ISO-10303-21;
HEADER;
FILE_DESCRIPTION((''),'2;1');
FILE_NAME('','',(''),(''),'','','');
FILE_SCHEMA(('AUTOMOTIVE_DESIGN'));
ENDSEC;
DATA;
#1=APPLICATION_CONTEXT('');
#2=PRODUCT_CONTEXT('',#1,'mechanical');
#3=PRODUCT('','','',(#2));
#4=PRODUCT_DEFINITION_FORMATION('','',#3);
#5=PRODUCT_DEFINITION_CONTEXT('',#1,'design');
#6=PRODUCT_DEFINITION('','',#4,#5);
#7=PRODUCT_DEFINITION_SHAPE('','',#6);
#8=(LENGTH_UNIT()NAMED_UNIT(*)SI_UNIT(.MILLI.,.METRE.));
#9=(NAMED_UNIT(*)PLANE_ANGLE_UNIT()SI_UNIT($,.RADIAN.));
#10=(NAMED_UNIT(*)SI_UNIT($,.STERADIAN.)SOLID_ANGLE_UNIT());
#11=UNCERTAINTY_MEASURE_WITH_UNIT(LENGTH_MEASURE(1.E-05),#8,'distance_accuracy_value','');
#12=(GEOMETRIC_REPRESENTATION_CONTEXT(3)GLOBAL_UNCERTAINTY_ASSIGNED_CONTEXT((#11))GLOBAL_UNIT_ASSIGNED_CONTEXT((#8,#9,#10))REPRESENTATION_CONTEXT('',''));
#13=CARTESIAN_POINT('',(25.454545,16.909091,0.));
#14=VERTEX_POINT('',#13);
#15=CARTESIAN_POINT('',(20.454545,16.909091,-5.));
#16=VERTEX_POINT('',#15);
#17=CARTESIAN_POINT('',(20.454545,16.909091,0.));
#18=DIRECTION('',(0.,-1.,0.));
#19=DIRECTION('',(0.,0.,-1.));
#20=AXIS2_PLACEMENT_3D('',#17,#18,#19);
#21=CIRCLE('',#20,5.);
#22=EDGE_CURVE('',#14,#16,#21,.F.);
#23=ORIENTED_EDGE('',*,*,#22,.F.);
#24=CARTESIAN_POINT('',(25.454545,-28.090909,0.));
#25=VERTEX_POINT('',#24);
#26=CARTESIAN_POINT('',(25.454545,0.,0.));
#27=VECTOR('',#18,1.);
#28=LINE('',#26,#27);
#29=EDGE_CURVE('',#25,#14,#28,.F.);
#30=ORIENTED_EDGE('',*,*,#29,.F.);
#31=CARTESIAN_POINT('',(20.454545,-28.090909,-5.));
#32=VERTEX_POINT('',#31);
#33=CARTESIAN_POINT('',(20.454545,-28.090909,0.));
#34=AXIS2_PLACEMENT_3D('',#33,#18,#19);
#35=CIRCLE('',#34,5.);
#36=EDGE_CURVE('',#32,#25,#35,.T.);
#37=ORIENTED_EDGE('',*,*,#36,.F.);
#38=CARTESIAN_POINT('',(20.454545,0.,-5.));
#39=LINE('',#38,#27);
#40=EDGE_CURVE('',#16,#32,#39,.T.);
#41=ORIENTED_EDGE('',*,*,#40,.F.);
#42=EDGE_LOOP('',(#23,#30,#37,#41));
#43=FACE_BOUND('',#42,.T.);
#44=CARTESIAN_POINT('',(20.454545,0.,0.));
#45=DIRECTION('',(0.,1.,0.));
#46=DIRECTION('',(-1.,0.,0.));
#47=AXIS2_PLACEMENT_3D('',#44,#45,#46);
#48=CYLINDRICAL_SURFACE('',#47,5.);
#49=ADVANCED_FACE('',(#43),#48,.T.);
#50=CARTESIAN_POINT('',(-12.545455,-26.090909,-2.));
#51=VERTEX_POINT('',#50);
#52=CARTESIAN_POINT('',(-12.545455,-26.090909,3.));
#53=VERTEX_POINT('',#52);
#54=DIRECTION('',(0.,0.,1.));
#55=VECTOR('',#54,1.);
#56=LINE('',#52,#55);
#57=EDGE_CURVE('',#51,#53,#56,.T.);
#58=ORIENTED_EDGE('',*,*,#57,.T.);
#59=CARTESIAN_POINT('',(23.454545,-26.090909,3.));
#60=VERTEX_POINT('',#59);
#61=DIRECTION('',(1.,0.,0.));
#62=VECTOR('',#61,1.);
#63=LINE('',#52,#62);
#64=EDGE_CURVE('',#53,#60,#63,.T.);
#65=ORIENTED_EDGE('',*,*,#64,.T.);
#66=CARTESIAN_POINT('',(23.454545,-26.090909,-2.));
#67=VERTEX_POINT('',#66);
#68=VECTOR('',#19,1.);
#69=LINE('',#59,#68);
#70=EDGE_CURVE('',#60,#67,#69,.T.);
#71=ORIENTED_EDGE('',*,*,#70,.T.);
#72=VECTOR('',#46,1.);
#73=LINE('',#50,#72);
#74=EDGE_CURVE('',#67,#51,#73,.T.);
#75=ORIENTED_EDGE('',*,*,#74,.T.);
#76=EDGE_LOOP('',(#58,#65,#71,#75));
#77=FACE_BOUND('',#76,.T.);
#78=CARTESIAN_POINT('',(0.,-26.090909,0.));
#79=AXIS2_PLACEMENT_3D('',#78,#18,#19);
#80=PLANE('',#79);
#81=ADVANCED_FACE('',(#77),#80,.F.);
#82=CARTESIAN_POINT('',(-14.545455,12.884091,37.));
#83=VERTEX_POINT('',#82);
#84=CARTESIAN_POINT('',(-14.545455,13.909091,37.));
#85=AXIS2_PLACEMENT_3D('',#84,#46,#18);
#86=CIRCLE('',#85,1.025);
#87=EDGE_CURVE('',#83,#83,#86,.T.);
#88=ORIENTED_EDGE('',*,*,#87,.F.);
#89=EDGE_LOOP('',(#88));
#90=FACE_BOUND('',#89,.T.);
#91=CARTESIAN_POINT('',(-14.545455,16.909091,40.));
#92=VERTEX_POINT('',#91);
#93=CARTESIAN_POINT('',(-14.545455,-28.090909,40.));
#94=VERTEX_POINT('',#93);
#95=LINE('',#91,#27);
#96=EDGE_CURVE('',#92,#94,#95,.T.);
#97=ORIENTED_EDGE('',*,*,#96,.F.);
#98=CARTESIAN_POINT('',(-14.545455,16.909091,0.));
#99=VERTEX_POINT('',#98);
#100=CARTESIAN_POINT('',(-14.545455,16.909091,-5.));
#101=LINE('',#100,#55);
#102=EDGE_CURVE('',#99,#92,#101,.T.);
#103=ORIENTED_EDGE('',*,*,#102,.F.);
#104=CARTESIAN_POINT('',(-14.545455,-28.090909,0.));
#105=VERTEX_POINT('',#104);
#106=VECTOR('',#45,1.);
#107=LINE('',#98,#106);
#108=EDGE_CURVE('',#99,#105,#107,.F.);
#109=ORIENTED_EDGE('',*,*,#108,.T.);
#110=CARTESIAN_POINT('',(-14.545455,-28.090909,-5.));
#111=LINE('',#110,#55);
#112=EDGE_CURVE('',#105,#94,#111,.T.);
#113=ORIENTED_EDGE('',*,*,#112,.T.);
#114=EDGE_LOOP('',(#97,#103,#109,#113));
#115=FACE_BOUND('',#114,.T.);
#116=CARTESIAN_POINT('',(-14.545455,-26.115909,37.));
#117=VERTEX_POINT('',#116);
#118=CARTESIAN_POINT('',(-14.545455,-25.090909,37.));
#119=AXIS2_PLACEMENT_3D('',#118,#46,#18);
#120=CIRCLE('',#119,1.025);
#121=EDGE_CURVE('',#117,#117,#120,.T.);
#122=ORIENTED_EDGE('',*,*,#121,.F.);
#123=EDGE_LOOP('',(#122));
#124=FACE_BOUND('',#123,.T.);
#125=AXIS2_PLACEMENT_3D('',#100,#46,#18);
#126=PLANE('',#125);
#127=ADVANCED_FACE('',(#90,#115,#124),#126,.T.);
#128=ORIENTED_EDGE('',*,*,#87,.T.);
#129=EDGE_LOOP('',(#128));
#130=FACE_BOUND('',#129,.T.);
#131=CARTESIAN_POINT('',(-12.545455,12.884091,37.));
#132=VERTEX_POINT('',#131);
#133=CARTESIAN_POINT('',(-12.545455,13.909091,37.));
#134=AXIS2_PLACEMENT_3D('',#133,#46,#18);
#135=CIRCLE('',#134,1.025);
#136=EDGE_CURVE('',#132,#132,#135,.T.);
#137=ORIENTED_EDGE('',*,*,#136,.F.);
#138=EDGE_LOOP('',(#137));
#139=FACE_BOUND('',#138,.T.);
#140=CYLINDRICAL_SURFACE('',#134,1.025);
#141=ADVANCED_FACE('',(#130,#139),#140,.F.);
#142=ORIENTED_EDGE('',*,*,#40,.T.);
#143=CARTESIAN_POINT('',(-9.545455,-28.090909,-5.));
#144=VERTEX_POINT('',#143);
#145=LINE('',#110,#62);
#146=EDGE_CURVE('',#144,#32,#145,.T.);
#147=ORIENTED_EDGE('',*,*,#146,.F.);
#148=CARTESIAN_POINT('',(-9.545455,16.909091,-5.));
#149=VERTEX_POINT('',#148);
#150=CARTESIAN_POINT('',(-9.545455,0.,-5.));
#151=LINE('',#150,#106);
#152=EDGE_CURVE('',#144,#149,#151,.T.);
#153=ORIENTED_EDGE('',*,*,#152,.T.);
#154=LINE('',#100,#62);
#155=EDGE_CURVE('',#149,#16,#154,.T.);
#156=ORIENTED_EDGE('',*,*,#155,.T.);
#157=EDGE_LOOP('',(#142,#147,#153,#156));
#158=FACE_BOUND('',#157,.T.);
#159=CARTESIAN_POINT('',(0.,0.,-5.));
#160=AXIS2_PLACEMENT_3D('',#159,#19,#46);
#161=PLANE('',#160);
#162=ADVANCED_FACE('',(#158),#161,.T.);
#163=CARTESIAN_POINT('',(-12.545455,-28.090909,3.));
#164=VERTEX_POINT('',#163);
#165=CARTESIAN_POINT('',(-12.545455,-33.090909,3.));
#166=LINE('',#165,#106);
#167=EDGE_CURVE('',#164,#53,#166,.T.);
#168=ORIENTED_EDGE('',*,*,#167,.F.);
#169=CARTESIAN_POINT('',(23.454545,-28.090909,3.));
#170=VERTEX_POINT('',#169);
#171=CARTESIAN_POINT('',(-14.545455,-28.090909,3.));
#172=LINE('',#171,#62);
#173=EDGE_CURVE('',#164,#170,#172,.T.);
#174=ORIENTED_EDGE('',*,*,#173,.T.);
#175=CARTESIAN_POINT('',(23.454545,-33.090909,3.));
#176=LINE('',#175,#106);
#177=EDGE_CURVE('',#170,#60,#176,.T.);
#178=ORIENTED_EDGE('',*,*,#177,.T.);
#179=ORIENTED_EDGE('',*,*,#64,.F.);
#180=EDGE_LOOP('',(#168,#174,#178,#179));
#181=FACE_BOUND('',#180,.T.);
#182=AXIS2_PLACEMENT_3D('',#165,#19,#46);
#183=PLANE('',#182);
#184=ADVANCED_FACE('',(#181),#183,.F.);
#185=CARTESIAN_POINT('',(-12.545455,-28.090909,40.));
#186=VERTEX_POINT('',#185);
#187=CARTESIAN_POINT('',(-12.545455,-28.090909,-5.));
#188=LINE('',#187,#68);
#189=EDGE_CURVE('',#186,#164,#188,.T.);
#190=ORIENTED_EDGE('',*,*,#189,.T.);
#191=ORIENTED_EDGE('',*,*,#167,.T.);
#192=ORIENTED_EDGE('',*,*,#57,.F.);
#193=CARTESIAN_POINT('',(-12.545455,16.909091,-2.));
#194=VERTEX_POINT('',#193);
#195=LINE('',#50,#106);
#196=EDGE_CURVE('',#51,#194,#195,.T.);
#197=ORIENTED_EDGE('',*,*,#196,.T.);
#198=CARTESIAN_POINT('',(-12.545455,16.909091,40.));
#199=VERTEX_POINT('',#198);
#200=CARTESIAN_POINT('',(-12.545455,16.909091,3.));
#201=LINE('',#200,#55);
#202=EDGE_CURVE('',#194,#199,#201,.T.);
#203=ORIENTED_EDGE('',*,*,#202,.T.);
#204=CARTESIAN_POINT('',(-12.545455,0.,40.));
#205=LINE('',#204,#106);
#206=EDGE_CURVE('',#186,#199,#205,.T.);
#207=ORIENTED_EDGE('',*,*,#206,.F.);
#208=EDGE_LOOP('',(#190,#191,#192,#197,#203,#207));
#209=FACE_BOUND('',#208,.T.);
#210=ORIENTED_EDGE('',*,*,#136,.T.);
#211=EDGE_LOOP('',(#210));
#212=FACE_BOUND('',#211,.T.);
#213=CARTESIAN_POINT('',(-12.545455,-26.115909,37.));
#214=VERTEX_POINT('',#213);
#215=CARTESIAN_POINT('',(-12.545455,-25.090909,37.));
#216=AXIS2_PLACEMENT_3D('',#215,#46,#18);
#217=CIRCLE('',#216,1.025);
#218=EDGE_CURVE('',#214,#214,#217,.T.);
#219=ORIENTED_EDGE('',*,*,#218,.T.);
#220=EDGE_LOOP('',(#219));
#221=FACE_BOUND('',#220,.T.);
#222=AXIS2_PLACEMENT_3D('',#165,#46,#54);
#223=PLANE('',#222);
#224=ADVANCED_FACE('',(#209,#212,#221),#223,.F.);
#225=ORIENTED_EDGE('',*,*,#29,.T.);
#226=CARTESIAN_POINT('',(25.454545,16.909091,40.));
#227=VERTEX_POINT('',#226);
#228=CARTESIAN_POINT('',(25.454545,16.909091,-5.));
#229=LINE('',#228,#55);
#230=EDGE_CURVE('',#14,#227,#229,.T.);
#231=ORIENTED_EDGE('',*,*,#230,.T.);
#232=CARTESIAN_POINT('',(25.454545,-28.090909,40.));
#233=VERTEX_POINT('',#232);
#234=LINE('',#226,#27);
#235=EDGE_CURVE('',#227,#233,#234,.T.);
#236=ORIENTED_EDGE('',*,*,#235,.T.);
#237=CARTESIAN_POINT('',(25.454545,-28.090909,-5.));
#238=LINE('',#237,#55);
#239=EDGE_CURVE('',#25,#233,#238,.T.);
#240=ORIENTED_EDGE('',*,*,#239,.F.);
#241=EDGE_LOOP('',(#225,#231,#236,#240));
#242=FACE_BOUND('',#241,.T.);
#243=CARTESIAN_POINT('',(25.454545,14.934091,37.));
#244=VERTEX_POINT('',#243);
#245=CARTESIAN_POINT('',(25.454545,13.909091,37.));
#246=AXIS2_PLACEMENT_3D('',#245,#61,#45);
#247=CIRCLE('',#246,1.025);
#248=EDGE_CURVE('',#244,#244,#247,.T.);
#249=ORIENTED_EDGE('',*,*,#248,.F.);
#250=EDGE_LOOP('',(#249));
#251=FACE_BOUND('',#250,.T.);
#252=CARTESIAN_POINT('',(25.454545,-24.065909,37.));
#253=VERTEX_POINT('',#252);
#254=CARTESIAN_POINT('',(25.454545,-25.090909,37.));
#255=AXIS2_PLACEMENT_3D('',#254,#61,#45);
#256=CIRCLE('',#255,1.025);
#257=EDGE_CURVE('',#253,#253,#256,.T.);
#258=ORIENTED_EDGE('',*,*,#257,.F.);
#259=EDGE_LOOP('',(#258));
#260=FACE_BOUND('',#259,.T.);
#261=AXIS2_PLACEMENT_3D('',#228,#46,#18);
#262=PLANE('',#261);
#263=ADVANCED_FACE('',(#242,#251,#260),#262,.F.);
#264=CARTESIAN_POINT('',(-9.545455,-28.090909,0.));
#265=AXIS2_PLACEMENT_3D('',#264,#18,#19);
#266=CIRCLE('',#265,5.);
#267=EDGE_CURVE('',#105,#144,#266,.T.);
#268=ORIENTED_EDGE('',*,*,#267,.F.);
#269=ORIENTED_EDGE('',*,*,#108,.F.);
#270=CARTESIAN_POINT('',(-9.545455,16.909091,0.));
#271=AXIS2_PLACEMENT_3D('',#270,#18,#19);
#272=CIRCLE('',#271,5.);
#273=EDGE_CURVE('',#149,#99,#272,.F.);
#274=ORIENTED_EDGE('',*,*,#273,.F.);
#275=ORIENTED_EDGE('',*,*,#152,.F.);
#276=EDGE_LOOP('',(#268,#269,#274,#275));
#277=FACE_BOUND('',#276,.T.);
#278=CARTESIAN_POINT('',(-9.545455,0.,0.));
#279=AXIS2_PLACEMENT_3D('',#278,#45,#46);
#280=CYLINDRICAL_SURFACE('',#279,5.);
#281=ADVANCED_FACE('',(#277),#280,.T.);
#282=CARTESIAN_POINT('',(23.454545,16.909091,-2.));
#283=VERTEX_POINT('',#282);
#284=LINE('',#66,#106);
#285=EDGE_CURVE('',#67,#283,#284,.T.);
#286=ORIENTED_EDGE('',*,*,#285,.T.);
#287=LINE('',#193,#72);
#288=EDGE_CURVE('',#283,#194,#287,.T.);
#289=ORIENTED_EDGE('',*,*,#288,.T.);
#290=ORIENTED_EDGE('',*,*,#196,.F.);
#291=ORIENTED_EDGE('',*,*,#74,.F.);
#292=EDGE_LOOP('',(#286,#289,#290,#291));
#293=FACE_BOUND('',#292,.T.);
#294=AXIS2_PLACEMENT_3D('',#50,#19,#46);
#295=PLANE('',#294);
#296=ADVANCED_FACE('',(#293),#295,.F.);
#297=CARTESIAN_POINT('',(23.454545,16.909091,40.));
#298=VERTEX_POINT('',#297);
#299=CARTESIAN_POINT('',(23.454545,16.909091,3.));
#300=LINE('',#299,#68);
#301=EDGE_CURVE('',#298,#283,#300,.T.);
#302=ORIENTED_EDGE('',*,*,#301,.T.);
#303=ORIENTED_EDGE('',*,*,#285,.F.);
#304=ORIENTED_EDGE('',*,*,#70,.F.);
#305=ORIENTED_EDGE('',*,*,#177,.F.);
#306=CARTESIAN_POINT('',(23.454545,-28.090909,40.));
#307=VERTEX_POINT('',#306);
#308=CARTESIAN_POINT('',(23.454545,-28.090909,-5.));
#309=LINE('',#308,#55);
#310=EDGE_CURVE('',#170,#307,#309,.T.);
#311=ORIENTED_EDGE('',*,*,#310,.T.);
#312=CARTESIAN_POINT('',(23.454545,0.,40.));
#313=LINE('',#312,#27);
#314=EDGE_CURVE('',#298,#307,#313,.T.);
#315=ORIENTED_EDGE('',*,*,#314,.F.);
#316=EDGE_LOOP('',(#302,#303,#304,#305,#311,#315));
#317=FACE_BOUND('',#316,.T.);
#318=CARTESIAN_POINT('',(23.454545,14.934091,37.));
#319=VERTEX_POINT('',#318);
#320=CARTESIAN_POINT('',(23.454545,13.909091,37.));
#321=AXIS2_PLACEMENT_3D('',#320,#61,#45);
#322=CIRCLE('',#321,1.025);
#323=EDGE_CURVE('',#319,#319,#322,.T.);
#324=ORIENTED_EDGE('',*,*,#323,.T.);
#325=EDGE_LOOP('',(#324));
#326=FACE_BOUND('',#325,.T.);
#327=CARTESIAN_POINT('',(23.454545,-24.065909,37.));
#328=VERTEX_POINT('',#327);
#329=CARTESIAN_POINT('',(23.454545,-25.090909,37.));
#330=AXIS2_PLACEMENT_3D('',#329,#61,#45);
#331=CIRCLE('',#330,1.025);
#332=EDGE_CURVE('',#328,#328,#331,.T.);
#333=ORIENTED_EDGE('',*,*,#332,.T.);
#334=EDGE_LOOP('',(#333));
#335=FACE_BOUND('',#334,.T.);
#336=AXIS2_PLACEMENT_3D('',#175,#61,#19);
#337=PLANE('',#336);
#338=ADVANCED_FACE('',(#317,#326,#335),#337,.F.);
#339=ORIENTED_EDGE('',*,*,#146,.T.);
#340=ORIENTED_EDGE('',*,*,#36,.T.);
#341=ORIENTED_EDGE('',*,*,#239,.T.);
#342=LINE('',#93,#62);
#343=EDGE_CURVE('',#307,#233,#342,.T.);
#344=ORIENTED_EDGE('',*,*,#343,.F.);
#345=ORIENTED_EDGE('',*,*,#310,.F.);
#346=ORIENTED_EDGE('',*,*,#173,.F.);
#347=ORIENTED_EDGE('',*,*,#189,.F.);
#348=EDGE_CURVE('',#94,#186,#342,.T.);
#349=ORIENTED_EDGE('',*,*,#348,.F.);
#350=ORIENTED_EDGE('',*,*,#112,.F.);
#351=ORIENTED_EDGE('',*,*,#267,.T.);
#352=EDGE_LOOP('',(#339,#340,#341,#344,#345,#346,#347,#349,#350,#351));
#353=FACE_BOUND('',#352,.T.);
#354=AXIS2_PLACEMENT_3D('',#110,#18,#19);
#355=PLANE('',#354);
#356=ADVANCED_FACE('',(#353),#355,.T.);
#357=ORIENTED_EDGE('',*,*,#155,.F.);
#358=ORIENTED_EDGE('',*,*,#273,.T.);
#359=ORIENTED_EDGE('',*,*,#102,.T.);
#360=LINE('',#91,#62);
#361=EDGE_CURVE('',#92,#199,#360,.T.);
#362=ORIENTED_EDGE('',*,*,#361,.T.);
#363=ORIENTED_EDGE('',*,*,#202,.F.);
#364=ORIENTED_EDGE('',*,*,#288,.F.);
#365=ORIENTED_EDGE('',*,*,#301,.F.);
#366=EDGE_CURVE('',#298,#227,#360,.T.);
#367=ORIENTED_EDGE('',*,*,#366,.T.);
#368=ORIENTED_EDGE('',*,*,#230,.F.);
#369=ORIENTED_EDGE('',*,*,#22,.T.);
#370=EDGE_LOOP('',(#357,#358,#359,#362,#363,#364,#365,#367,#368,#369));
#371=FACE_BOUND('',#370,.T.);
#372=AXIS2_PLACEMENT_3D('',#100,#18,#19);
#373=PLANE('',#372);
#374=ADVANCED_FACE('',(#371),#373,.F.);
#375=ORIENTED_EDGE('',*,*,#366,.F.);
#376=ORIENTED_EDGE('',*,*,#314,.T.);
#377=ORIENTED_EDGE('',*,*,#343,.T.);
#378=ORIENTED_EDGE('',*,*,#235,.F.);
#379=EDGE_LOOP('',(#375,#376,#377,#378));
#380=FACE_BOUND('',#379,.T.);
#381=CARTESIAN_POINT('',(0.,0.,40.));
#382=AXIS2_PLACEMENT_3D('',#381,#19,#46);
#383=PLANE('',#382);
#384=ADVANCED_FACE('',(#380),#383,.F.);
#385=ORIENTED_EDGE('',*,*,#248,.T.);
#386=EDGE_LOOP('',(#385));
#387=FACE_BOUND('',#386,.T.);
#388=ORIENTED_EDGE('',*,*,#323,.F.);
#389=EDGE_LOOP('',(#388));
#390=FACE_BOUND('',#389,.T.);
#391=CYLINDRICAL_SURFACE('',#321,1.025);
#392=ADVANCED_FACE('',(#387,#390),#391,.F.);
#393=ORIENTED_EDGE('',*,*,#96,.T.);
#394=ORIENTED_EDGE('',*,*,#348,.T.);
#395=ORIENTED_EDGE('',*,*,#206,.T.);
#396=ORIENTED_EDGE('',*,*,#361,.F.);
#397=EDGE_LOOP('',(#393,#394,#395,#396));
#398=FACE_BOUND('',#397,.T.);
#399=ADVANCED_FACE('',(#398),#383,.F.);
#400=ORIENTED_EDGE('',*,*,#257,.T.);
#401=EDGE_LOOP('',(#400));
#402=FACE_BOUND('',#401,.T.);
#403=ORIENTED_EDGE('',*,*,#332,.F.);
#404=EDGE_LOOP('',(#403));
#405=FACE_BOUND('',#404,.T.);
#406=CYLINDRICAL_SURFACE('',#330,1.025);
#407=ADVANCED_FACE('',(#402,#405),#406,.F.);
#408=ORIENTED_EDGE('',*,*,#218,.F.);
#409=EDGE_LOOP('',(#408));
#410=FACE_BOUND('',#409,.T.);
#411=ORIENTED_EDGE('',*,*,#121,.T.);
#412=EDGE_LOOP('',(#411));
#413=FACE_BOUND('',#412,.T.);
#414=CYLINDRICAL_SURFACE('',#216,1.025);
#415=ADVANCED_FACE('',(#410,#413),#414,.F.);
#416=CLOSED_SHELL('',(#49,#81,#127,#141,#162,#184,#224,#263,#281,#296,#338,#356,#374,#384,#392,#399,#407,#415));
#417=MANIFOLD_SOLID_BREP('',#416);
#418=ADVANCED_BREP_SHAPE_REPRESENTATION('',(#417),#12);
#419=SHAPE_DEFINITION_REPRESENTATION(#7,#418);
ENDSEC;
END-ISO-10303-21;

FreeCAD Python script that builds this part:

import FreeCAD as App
import Part
import Sketcher
from FreeCAD import Vector


def edges_at(feature, points):
    """Names of the edges that pass closest to the given points."""
    edges = feature.Shape.Edges
    near = lambda p: min(range(len(edges)), key=lambda i: edges[i].distToShape(Part.Vertex(*p))[0])
    return sorted({f"Edge{near(p) + 1}" for p in points})

doc = App.newDocument("Part")
body = doc.addObject("PartDesign::Body", "Body")

# Sketch on XY plane
sketch1 = body.newObject("Sketcher::SketchObject", "Sketch")
sketch1.AttachmentSupport = (doc.getObject("XY_Plane"), [""])
sketch1.MapMode = "FlatFace"
sketch1.addGeometry([
    Part.LineSegment(Vector(-15, 17, 0), Vector(-15, -28, 0)),
    Part.LineSegment(Vector(-15, -28, 0), Vector(25, -28, 0)),
    Part.LineSegment(Vector(25, -28, 0), Vector(25, 17, 0)),
    Part.LineSegment(Vector(25, 17, 0), Vector(-15, 17, 0)),
], False)
sketch1.addConstraint([
    Sketcher.Constraint("Coincident", 0, 2, 1, 1),
    Sketcher.Constraint("Coincident", 1, 2, 2, 1),
    Sketcher.Constraint("Coincident", 2, 2, 3, 1),
    Sketcher.Constraint("Coincident", 3, 2, 0, 1),
    Sketcher.Constraint("Vertical", 0),
    Sketcher.Constraint("Horizontal", 1),
    Sketcher.Constraint("Vertical", 2),
    Sketcher.Constraint("Horizontal", 3),
    Sketcher.Constraint("DistanceX", 1, 1, 1, 2, 40.0),
    Sketcher.Constraint("DistanceY", 0, 2, 0, 1, 45.0),
    Sketcher.Constraint("DistanceY", 0, 2, -1, 1, 28.090909),
    Sketcher.Constraint("DistanceX", 0, 2, -1, 1, 14.545455),
])
pad1 = body.newObject("PartDesign::Pad", "Pad")
pad1.Profile = sketch1
pad1.Type = "TwoLengths"
pad1.Length = 40
pad1.Length2 = 5

# Sketch on XZ plane
sketch2 = body.newObject("Sketcher::SketchObject", "Sketch001")
sketch2.AttachmentSupport = (doc.getObject("XZ_Plane"), [""])
sketch2.MapMode = "FlatFace"
sketch2.AttachmentOffset = App.Placement(Vector(0, 0, -16.909091), App.Rotation())
sketch2.addGeometry([
    Part.LineSegment(Vector(-13, 3, 0), Vector(-13, 40, 0)),
    Part.LineSegment(Vector(-13, 40, 0), Vector(23, 40, 0)),
    Part.LineSegment(Vector(23, 40, 0), Vector(23, 3, 0)),
    Part.LineSegment(Vector(23, 3, 0), Vector(-13, 3, 0)),
], False)
sketch2.addConstraint([
    Sketcher.Constraint("Coincident", 0, 2, 1, 1),
    Sketcher.Constraint("Coincident", 1, 2, 2, 1),
    Sketcher.Constraint("Coincident", 2, 2, 3, 1),
    Sketcher.Constraint("Coincident", 3, 2, 0, 1),
    Sketcher.Constraint("Vertical", 0),
    Sketcher.Constraint("Horizontal", 1),
    Sketcher.Constraint("Vertical", 2),
    Sketcher.Constraint("Horizontal", 3),
    Sketcher.Constraint("DistanceX", 1, 1, 1, 2, 36.0),
    Sketcher.Constraint("DistanceY", 0, 1, 0, 2, 37.0),
    Sketcher.Constraint("DistanceY", -1, 1, 0, 2, 40.0),
    Sketcher.Constraint("DistanceX", 0, 2, -1, 1, 12.545455),
])
pocket1 = body.newObject("PartDesign::Pocket", "Pocket")
pocket1.Profile = sketch2
pocket1.Length = 50
pocket1.Reversed = True

# Sketch on YZ plane
sketch3 = body.newObject("Sketcher::SketchObject", "Sketch002")
sketch3.AttachmentSupport = (doc.getObject("YZ_Plane"), [""])
sketch3.MapMode = "FlatFace"
sketch3.AttachmentOffset = App.Placement(Vector(0, 0, -14.545455), App.Rotation())
sketch3.addGeometry([
    Part.Circle(Vector(-25.1, 37, 0), Vector(0, 0, 1), 1),
    Part.Circle(Vector(13.9, 37, 0), Vector(0, 0, 1), 1),
], False)
sketch3.addConstraint([
    Sketcher.Constraint("Equal", 0, 1),
    Sketcher.Constraint("Horizontal", 0, 3, 1, 3),
    Sketcher.Constraint("Diameter", 0, 2.05),
    Sketcher.Constraint("DistanceY", -1, 1, 0, 3, 37.0),
    Sketcher.Constraint("DistanceX", 0, 3, 1, 3, 39.0),
    Sketcher.Constraint("DistanceX", 0, 3, -1, 1, 25.090909),
])
pocket2 = body.newObject("PartDesign::Pocket", "Pocket001")
pocket2.Profile = sketch3
pocket2.Length = 2
pocket2.Reversed = True

# Sketch on YZ plane
sketch4 = body.newObject("Sketcher::SketchObject", "Sketch003")
sketch4.AttachmentSupport = (doc.getObject("YZ_Plane"), [""])
sketch4.MapMode = "FlatFace"
sketch4.AttachmentOffset = App.Placement(Vector(0, 0, 25.454545), App.Rotation())
sketch4.addGeometry([
    Part.Circle(Vector(13.9, 37, 0), Vector(0, 0, 1), 1),
    Part.Circle(Vector(-25.1, 37, 0), Vector(0, 0, 1), 1),
], False)
sketch4.addConstraint([
    Sketcher.Constraint("Equal", 0, 1),
    Sketcher.Constraint("Horizontal", 0, 3, 1, 3),
    Sketcher.Constraint("Diameter", 0, 2.05),
    Sketcher.Constraint("DistanceY", -1, 1, 0, 3, 37.0),
    Sketcher.Constraint("DistanceX", 1, 3, 0, 3, 39.0),
    Sketcher.Constraint("DistanceX", -1, 1, 0, 3, 13.909091),
])
pocket3 = body.newObject("PartDesign::Pocket", "Pocket002")
pocket3.Profile = sketch4
pocket3.Length = 2

# Sketch on XZ plane
sketch5 = body.newObject("Sketcher::SketchObject", "Sketch004")
sketch5.AttachmentSupport = (doc.getObject("XZ_Plane"), [""])
sketch5.MapMode = "FlatFace"
sketch5.AttachmentOffset = App.Placement(Vector(0, 0, -16.909091), App.Rotation())
sketch5.addGeometry([
    Part.LineSegment(Vector(-13, -2, 0), Vector(-13, 3, 0)),
    Part.LineSegment(Vector(-13, 3, 0), Vector(23, 3, 0)),
    Part.LineSegment(Vector(23, 3, 0), Vector(23, -2, 0)),
    Part.LineSegment(Vector(23, -2, 0), Vector(-13, -2, 0)),
], False)
sketch5.addConstraint([
    Sketcher.Constraint("Coincident", 0, 2, 1, 1),
    Sketcher.Constraint("Coincident", 1, 2, 2, 1),
    Sketcher.Constraint("Coincident", 2, 2, 3, 1),
    Sketcher.Constraint("Coincident", 3, 2, 0, 1),
    Sketcher.Constraint("Vertical", 0),
    Sketcher.Constraint("Horizontal", 1),
    Sketcher.Constraint("Vertical", 2),
    Sketcher.Constraint("Horizontal", 3),
    Sketcher.Constraint("DistanceX", 1, 1, 1, 2, 36.0),
    Sketcher.Constraint("DistanceY", 0, 1, 0, 2, 5.0),
    Sketcher.Constraint("DistanceY", -1, 1, 0, 2, 3.0),
    Sketcher.Constraint("DistanceX", 0, 2, -1, 1, 12.545455),
])
pocket4 = body.newObject("PartDesign::Pocket", "Pocket003")
pocket4.Profile = sketch5
pocket4.Length = 43
pocket4.Reversed = True
doc.recompute()

fillet = body.newObject("PartDesign::Fillet", "Fillet")
fillet.Base = (pocket4, edges_at(pocket4, [(-14.545, -5.591, -5)]))
fillet.Radius = 5
doc.recompute()

fillet2 = body.newObject("PartDesign::Fillet", "Fillet001")
fillet2.Base = (fillet, edges_at(fillet, [(25.455, -5.591, -5)]))
fillet2.Radius = 5

doc.recompute()
